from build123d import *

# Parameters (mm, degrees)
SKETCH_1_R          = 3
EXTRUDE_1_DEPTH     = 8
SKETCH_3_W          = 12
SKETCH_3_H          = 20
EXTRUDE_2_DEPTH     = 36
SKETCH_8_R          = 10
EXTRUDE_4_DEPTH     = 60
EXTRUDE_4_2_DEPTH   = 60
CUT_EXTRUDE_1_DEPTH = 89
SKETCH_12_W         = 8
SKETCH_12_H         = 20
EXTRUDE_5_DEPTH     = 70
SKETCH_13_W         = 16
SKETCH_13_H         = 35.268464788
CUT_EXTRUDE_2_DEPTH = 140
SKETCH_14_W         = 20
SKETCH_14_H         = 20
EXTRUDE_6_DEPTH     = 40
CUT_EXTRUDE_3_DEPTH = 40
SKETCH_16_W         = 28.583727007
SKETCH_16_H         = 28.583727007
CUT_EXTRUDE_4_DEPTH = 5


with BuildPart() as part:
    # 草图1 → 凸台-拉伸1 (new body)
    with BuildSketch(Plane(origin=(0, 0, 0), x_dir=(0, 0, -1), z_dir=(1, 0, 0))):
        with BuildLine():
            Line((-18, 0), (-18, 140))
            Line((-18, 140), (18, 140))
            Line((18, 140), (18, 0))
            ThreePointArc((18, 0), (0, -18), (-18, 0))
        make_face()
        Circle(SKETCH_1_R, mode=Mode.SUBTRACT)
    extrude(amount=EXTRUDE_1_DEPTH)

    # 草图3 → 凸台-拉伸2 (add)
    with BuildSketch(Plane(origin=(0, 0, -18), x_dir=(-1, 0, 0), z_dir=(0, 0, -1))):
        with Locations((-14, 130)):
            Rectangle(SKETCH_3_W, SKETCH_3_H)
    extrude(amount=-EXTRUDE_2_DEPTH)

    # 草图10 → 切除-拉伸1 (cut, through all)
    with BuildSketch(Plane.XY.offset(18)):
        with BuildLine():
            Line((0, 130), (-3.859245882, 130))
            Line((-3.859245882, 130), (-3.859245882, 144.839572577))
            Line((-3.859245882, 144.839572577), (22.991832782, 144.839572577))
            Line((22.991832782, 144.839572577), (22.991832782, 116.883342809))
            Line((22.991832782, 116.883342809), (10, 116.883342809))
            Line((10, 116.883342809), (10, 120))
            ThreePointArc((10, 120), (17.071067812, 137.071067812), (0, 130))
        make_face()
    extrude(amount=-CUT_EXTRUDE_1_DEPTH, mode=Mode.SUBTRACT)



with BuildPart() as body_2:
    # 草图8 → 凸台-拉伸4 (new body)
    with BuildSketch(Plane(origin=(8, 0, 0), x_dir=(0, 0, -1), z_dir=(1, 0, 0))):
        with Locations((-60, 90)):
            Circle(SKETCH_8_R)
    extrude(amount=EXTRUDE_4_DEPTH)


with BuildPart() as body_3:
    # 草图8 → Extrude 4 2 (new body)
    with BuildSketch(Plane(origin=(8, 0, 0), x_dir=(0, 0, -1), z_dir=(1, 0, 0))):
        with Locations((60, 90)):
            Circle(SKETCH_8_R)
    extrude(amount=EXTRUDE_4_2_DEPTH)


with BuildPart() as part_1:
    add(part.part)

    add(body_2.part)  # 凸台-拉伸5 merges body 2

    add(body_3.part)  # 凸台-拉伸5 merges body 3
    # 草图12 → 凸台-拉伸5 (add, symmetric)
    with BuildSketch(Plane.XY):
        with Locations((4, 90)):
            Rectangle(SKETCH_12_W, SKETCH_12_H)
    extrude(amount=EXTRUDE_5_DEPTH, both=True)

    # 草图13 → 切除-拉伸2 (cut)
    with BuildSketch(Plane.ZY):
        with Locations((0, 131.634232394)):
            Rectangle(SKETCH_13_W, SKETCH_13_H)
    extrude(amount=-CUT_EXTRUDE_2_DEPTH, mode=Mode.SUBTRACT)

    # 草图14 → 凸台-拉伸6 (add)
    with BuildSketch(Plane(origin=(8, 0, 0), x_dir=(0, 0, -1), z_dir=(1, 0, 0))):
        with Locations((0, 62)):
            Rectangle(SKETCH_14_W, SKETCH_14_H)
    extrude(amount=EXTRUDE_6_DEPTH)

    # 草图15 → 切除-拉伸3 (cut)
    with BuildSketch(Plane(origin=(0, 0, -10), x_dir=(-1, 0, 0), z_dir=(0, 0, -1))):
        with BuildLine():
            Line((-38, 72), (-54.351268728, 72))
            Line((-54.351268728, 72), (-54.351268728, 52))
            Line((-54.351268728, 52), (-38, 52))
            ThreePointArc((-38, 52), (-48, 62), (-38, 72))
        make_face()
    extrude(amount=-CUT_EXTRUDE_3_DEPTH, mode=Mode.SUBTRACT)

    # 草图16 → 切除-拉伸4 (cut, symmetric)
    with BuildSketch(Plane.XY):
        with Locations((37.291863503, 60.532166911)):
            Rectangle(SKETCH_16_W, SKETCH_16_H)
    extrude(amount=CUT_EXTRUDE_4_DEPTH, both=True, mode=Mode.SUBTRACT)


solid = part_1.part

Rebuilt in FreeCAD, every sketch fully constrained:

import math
import FreeCAD as App
import Part
import Sketcher
from FreeCAD import Vector


def add_polygon(sketch, points):
    """Adds a closed chain of lines whose ends are joined by coincident constraints."""
    first, n = sketch.GeometryCount, len(points)
    for a, b in zip(points, points[1:] + points[:1]):
        sketch.addGeometry(Part.LineSegment(App.Vector(*a, 0), App.Vector(*b, 0)), False)
    for i in range(n):
        sketch.addConstraint(Sketcher.Constraint("Coincident", first + i, 2, first + (i + 1) % n, 1))

doc = App.newDocument("Part")
body = doc.addObject("PartDesign::Body", "Body")

# Sketch on YZ plane
sketch1 = doc.addObject("Sketcher::SketchObject", "Sketch")
body.addObject(sketch1)
sketch1.AttachmentSupport = (doc.YZ_Plane, [""])
sketch1.MapMode = "FlatFace"
sketch1.addGeometry(Part.LineSegment(Vector(140, 18, 0), Vector(0, 18, 0)), False)
sketch1.addGeometry(Part.ArcOfCircle(Part.Circle(Vector(0, 0, 0), Vector(0, 0, 1), 18), math.radians(90), math.radians(270)), False)
sketch1.addGeometry(Part.LineSegment(Vector(0, -18, 0), Vector(140, -18, 0)), False)
sketch1.addGeometry(Part.LineSegment(Vector(140, -18, 0), Vector(140, 18, 0)), False)
sketch1.addGeometry(Part.Circle(Vector(0, 0, 0), Vector(0, 0, 1), 3), False)
sketch1.addConstraint(Sketcher.Constraint("Tangent", 0, 2, 1, 1))
sketch1.addConstraint(Sketcher.Constraint("Tangent", 1, 2, 2, 1))
sketch1.addConstraint(Sketcher.Constraint("Coincident", 2, 2, 3, 1))
sketch1.addConstraint(Sketcher.Constraint("Coincident", 3, 2, 0, 1))
sketch1.addConstraint(Sketcher.Constraint("Horizontal", 0))
sketch1.addConstraint(Sketcher.Constraint("Horizontal", 2))
sketch1.addConstraint(Sketcher.Constraint("Vertical", 3))
sketch1.addConstraint(Sketcher.Constraint("Coincident", 1, 3, -1, 1))
sketch1.addConstraint(Sketcher.Constraint("Coincident", 4, 3, -1, 1))
sketch1.addConstraint(Sketcher.Constraint("Diameter", 4, 6.0))
sketch1.addConstraint(Sketcher.Constraint("Radius", 1, 18.0))
sketch1.addConstraint(Sketcher.Constraint("DistanceX", 0, 2, 0, 1, 140.0))
pad1 = doc.addObject("PartDesign::Pad", "Pad")
body.addObject(pad1)
pad1.Profile = sketch1
pad1.Length = 8

# Sketch on XY plane
sketch2 = doc.addObject("Sketcher::SketchObject", "Sketch001")
body.addObject(sketch2)
sketch2.AttachmentSupport = (doc.XY_Plane, [""])
sketch2.MapMode = "FlatFace"
sketch2.AttachmentOffset = App.Placement(Vector(0, 0, -18), App.Rotation())
add_polygon(sketch2, [(20, 140), (20, 120), (8, 120), (8, 140)])  # lines 0-3
sketch2.addConstraint(Sketcher.Constraint("Vertical", 0))
sketch2.addConstraint(Sketcher.Constraint("Horizontal", 1))
sketch2.addConstraint(Sketcher.Constraint("Vertical", 2))
sketch2.addConstraint(Sketcher.Constraint("Horizontal", 3))
sketch2.addConstraint(Sketcher.Constraint("DistanceX", 1, 2, 1, 1, 12.0))
sketch2.addConstraint(Sketcher.Constraint("DistanceY", 0, 2, 0, 1, 20.0))
sketch2.addConstraint(Sketcher.Constraint("DistanceX", -1, 1, 0, 2, 20.0))
sketch2.addConstraint(Sketcher.Constraint("DistanceY", -1, 1, 0, 2, 120.0))
pad2 = doc.addObject("PartDesign::Pad", "Pad001")
body.addObject(pad2)
pad2.Profile = sketch2
pad2.Length = 36

# Sketch on XY plane
sketch3 = doc.addObject("Sketcher::SketchObject", "Sketch002")
body.addObject(sketch3)
sketch3.AttachmentSupport = (doc.XY_Plane, [""])
sketch3.MapMode = "FlatFace"
sketch3.AttachmentOffset = App.Placement(Vector(0, 0, 18), App.Rotation())
sketch3.addGeometry(Part.LineSegment(Vector(-3.859246, 130, 0), Vector(0, 130, 0)), False)
sketch3.addGeometry(Part.ArcOfCircle(Part.Circle(Vector(10, 130, 0), Vector(0, 0, 1), 10), math.radians(-90), math.radians(180)), False)
sketch3.addGeometry(Part.LineSegment(Vector(10, 120, 0), Vector(10, 116.883343, 0)), False)
sketch3.addGeometry(Part.LineSegment(Vector(10, 116.883343, 0), Vector(22.991833, 116.883343, 0)), False)
sketch3.addGeometry(Part.LineSegment(Vector(22.991833, 116.883343, 0), Vector(22.991833, 144.839573, 0)), False)
sketch3.addGeometry(Part.LineSegment(Vector(22.991833, 144.839573, 0), Vector(-3.859246, 144.839573, 0)), False)
sketch3.addGeometry(Part.LineSegment(Vector(-3.859246, 144.839573, 0), Vector(-3.859246, 130, 0)), False)
sketch3.addConstraint(Sketcher.Constraint("Coincident", 0, 2, 1, 2))
sketch3.addConstraint(Sketcher.Constraint("Coincident", 1, 1, 2, 1))
sketch3.addConstraint(Sketcher.Constraint("Coincident", 2, 2, 3, 1))
sketch3.addConstraint(Sketcher.Constraint("Coincident", 3, 2, 4, 1))
sketch3.addConstraint(Sketcher.Constraint("Coincident", 4, 2, 5, 1))
sketch3.addConstraint(Sketcher.Constraint("Coincident", 5, 2, 6, 1))
sketch3.addConstraint(Sketcher.Constraint("Coincident", 6, 2, 0, 1))
sketch3.addConstraint(Sketcher.Constraint("Horizontal", 0))
sketch3.addConstraint(Sketcher.Constraint("Vertical", 2))
sketch3.addConstraint(Sketcher.Constraint("Horizontal", 3))
sketch3.addConstraint(Sketcher.Constraint("Vertical", 4))
sketch3.addConstraint(Sketcher.Constraint("Horizontal", 5))
sketch3.addConstraint(Sketcher.Constraint("Vertical", 6))
sketch3.addConstraint(Sketcher.Constraint("PointOnObject", 0, 2, -2))
sketch3.addConstraint(Sketcher.Constraint("Horizontal", 1, 3, 0, 2))
sketch3.addConstraint(Sketcher.Constraint("Radius", 1, 10.0))
sketch3.addConstraint(Sketcher.Constraint("DistanceY", -1, 1, 1, 3, 130.0))
sketch3.addConstraint(Sketcher.Constraint("DistanceX", -1, 1, 1, 1, 10.0))
sketch3.addConstraint(Sketcher.Constraint("DistanceX", 5, 2, 5, 1, 26.851079))
sketch3.addConstraint(Sketcher.Constraint("DistanceY", 4, 1, 4, 2, 27.95623))
sketch3.addConstraint(Sketcher.Constraint("DistanceX", 0, 1, 0, 2, 3.859246))
sketch3.addConstraint(Sketcher.Constraint("DistanceY", 2, 2, 2, 1, 3.116657))
pocket1 = doc.addObject("PartDesign::Pocket", "Pocket")
body.addObject(pocket1)
pocket1.Profile = sketch3
pocket1.Type = "ThroughAll"
body2 = doc.addObject("PartDesign::Body", "Body001")

# Sketch on YZ plane
sketch4 = doc.addObject("Sketcher::SketchObject", "Sketch003")
body2.addObject(sketch4)
sketch4.AttachmentSupport = (doc.getObject("YZ_Plane001"), [""])
sketch4.MapMode = "FlatFace"
sketch4.AttachmentOffset = App.Placement(Vector(0, 0, 8), App.Rotation())
sketch4.addGeometry(Part.Circle(Vector(90, 60, 0), Vector(0, 0, 1), 10), False)
sketch4.addConstraint(Sketcher.Constraint("Diameter", 0, 20.0))
sketch4.addConstraint(Sketcher.Constraint("DistanceX", -1, 1, 0, 3, 90.0))
sketch4.addConstraint(Sketcher.Constraint("DistanceY", -1, 1, 0, 3, 60.0))
pad3 = doc.addObject("PartDesign::Pad", "Pad002")
body2.addObject(pad3)
pad3.Profile = sketch4
pad3.Length = 60
body3 = doc.addObject("PartDesign::Body", "Body002")

# Sketch on YZ plane
sketch5 = doc.addObject("Sketcher::SketchObject", "Sketch004")
body3.addObject(sketch5)
sketch5.AttachmentSupport = (doc.getObject("YZ_Plane002"), [""])
sketch5.MapMode = "FlatFace"
sketch5.AttachmentOffset = App.Placement(Vector(0, 0, 8), App.Rotation())
sketch5.addGeometry(Part.Circle(Vector(90, -60, 0), Vector(0, 0, 1), 10), False)
sketch5.addConstraint(Sketcher.Constraint("Diameter", 0, 20.0))
sketch5.addConstraint(Sketcher.Constraint("DistanceX", -1, 1, 0, 3, 90.0))
sketch5.addConstraint(Sketcher.Constraint("DistanceY", 0, 3, -1, 1, 60.0))
pad4 = doc.addObject("PartDesign::Pad", "Pad003")
body3.addObject(pad4)
pad4.Profile = sketch5
pad4.Length = 60
body.AllowCompound = True
doc.recompute()

boolean = doc.addObject("PartDesign::Boolean", "Boolean")
body.addObject(boolean)
boolean.Type = "Fuse"
boolean.addObjects([body2])
doc.recompute()

boolean2 = doc.addObject("PartDesign::Boolean", "Boolean001")
body.addObject(boolean2)
boolean2.Type = "Fuse"
boolean2.addObjects([body3])

# Sketch on XY plane
sketch6 = doc.addObject("Sketcher::SketchObject", "Sketch005")
body.addObject(sketch6)
sketch6.AttachmentSupport = (doc.XY_Plane, [""])
sketch6.MapMode = "FlatFace"
add_polygon(sketch6, [(0, 100), (0, 80), (8, 80), (8, 100)])  # lines 0-3
sketch6.addConstraint(Sketcher.Constraint("Vertical", 0))
sketch6.addConstraint(Sketcher.Constraint("Horizontal", 1))
sketch6.addConstraint(Sketcher.Constraint("Vertical", 2))
sketch6.addConstraint(Sketcher.Constraint("Horizontal", 3))
sketch6.addConstraint(Sketcher.Constraint("PointOnObject", 0, 2, -2))
sketch6.addConstraint(Sketcher.Constraint("DistanceX", 1, 1, 1, 2, 8.0))
sketch6.addConstraint(Sketcher.Constraint("DistanceY", 0, 2, 0, 1, 20.0))
sketch6.addConstraint(Sketcher.Constraint("DistanceY", -1, 1, 0, 2, 80.0))
pad5 = doc.addObject("PartDesign::Pad", "Pad004")
body.addObject(pad5)
pad5.Profile = sketch6
pad5.Length = 140
pad5.Midplane = True

# Sketch on YZ plane
sketch7 = doc.addObject("Sketcher::SketchObject", "Sketch006")
body.addObject(sketch7)
sketch7.AttachmentSupport = (doc.YZ_Plane, [""])
sketch7.MapMode = "FlatFace"
add_polygon(sketch7, [(149.268465, -8), (114, -8), (114, 8), (149.268465, 8)])  # lines 0-3
sketch7.addConstraint(Sketcher.Constraint("Horizontal", 0))
sketch7.addConstraint(Sketcher.Constraint("Vertical", 1))
sketch7.addConstraint(Sketcher.Constraint("Horizontal", 2))
sketch7.addConstraint(Sketcher.Constraint("Vertical", 3))
sketch7.addConstraint(Sketcher.Constraint("DistanceY", 1, 1, 1, 2, 16.0))
sketch7.addConstraint(Sketcher.Constraint("DistanceX", -1, 1, 0, 2, 114.0))
sketch7.addConstraint(Sketcher.Constraint("DistanceY", 0, 2, -1, 1, 8.0))
sketch7.addConstraint(Sketcher.Constraint("DistanceX", 0, 2, 0, 1, 35.268465))
pocket2 = doc.addObject("PartDesign::Pocket", "Pocket001")
body.addObject(pocket2)
pocket2.Profile = sketch7
pocket2.Length = 140
pocket2.Reversed = True

# Sketch on YZ plane
sketch8 = doc.addObject("Sketcher::SketchObject", "Sketch007")
body.addObject(sketch8)
sketch8.AttachmentSupport = (doc.YZ_Plane, [""])
sketch8.MapMode = "FlatFace"
sketch8.AttachmentOffset = App.Placement(Vector(0, 0, 8), App.Rotation())
add_polygon(sketch8, [(72, 10), (52, 10), (52, -10), (72, -10)])  # lines 0-3
sketch8.addConstraint(Sketcher.Constraint("Horizontal", 0))
sketch8.addConstraint(Sketcher.Constraint("Vertical", 1))
sketch8.addConstraint(Sketcher.Constraint("Horizontal", 2))
sketch8.addConstraint(Sketcher.Constraint("Vertical", 3))
sketch8.addConstraint(Sketcher.Constraint("Equal", 2, 1))
sketch8.addConstraint(Sketcher.Constraint("DistanceX", 0, 2, 0, 1, 20.0))
sketch8.addConstraint(Sketcher.Constraint("DistanceX", -1, 1, 0, 2, 52.0))
sketch8.addConstraint(Sketcher.Constraint("DistanceY", -1, 1, 0, 2, 10.0))
pad6 = doc.addObject("PartDesign::Pad", "Pad005")
body.addObject(pad6)
pad6.Profile = sketch8
pad6.Length = 40

# Sketch on XY plane
sketch9 = doc.addObject("Sketcher::SketchObject", "Sketch008")
body.addObject(sketch9)
sketch9.AttachmentSupport = (doc.XY_Plane, [""])
sketch9.MapMode = "FlatFace"
sketch9.AttachmentOffset = App.Placement(Vector(0, 0, -10), App.Rotation())
sketch9.addGeometry(Part.LineSegment(Vector(38, 72, 0), Vector(54.351269, 72, 0)), False)
sketch9.addGeometry(Part.LineSegment(Vector(54.351269, 72, 0), Vector(54.351269, 52, 0)), False)
sketch9.addGeometry(Part.LineSegment(Vector(54.351269, 52, 0), Vector(38, 52, 0)), False)
sketch9.addGeometry(Part.ArcOfCircle(Part.Circle(Vector(38, 62, 0), Vector(0, 0, 1), 10), math.radians(-90), math.radians(90)), False)
sketch9.addConstraint(Sketcher.Constraint("Coincident", 0, 2, 1, 1))
sketch9.addConstraint(Sketcher.Constraint("Coincident", 1, 2, 2, 1))
sketch9.addConstraint(Sketcher.Constraint("Tangent", 2, 2, 3, 1))
sketch9.addConstraint(Sketcher.Constraint("Tangent", 3, 2, 0, 1))
sketch9.addConstraint(Sketcher.Constraint("Horizontal", 0))
sketch9.addConstraint(Sketcher.Constraint("Vertical", 1))
sketch9.addConstraint(Sketcher.Constraint("Horizontal", 2))
sketch9.addConstraint(Sketcher.Constraint("Radius", 3, 10.0))
sketch9.addConstraint(Sketcher.Constraint("DistanceX", -1, 1, 3, 3, 38.0))
sketch9.addConstraint(Sketcher.Constraint("DistanceY", -1, 1, 3, 3, 62.0))
sketch9.addConstraint(Sketcher.Constraint("DistanceX", 0, 1, 0, 2, 16.351269))
pocket3 = doc.addObject("PartDesign::Pocket", "Pocket002")
body.addObject(pocket3)
pocket3.Profile = sketch9
pocket3.Length = 40
pocket3.Reversed = True

# Sketch on XY plane
sketch10 = doc.addObject("Sketcher::SketchObject", "Sketch009")
body.addObject(sketch10)
sketch10.AttachmentSupport = (doc.XY_Plane, [""])
sketch10.MapMode = "FlatFace"
add_polygon(sketch10, [(23, 74.82403), (23, 46.240303), (51.583727, 46.240303), (51.583727, 74.82403)])  # lines 0-3
sketch10.addConstraint(Sketcher.Constraint("Vertical", 0))
sketch10.addConstraint(Sketcher.Constraint("Horizontal", 1))
sketch10.addConstraint(Sketcher.Constraint("Vertical", 2))
sketch10.addConstraint(Sketcher.Constraint("Horizontal", 3))
sketch10.addConstraint(Sketcher.Constraint("Equal", 3, 0))
sketch10.addConstraint(Sketcher.Constraint("DistanceX", -1, 1, 0, 2, 23.0))
sketch10.addConstraint(Sketcher.Constraint("DistanceX", 1, 1, 1, 2, 28.583727))
sketch10.addConstraint(Sketcher.Constraint("DistanceY", -1, 1, 2, 2, 74.82403))
pocket4 = doc.addObject("PartDesign::Pocket", "Pocket003")
body.addObject(pocket4)
pocket4.Profile = sketch10
pocket4.Length = 10
pocket4.Midplane = True

doc.recompute()
